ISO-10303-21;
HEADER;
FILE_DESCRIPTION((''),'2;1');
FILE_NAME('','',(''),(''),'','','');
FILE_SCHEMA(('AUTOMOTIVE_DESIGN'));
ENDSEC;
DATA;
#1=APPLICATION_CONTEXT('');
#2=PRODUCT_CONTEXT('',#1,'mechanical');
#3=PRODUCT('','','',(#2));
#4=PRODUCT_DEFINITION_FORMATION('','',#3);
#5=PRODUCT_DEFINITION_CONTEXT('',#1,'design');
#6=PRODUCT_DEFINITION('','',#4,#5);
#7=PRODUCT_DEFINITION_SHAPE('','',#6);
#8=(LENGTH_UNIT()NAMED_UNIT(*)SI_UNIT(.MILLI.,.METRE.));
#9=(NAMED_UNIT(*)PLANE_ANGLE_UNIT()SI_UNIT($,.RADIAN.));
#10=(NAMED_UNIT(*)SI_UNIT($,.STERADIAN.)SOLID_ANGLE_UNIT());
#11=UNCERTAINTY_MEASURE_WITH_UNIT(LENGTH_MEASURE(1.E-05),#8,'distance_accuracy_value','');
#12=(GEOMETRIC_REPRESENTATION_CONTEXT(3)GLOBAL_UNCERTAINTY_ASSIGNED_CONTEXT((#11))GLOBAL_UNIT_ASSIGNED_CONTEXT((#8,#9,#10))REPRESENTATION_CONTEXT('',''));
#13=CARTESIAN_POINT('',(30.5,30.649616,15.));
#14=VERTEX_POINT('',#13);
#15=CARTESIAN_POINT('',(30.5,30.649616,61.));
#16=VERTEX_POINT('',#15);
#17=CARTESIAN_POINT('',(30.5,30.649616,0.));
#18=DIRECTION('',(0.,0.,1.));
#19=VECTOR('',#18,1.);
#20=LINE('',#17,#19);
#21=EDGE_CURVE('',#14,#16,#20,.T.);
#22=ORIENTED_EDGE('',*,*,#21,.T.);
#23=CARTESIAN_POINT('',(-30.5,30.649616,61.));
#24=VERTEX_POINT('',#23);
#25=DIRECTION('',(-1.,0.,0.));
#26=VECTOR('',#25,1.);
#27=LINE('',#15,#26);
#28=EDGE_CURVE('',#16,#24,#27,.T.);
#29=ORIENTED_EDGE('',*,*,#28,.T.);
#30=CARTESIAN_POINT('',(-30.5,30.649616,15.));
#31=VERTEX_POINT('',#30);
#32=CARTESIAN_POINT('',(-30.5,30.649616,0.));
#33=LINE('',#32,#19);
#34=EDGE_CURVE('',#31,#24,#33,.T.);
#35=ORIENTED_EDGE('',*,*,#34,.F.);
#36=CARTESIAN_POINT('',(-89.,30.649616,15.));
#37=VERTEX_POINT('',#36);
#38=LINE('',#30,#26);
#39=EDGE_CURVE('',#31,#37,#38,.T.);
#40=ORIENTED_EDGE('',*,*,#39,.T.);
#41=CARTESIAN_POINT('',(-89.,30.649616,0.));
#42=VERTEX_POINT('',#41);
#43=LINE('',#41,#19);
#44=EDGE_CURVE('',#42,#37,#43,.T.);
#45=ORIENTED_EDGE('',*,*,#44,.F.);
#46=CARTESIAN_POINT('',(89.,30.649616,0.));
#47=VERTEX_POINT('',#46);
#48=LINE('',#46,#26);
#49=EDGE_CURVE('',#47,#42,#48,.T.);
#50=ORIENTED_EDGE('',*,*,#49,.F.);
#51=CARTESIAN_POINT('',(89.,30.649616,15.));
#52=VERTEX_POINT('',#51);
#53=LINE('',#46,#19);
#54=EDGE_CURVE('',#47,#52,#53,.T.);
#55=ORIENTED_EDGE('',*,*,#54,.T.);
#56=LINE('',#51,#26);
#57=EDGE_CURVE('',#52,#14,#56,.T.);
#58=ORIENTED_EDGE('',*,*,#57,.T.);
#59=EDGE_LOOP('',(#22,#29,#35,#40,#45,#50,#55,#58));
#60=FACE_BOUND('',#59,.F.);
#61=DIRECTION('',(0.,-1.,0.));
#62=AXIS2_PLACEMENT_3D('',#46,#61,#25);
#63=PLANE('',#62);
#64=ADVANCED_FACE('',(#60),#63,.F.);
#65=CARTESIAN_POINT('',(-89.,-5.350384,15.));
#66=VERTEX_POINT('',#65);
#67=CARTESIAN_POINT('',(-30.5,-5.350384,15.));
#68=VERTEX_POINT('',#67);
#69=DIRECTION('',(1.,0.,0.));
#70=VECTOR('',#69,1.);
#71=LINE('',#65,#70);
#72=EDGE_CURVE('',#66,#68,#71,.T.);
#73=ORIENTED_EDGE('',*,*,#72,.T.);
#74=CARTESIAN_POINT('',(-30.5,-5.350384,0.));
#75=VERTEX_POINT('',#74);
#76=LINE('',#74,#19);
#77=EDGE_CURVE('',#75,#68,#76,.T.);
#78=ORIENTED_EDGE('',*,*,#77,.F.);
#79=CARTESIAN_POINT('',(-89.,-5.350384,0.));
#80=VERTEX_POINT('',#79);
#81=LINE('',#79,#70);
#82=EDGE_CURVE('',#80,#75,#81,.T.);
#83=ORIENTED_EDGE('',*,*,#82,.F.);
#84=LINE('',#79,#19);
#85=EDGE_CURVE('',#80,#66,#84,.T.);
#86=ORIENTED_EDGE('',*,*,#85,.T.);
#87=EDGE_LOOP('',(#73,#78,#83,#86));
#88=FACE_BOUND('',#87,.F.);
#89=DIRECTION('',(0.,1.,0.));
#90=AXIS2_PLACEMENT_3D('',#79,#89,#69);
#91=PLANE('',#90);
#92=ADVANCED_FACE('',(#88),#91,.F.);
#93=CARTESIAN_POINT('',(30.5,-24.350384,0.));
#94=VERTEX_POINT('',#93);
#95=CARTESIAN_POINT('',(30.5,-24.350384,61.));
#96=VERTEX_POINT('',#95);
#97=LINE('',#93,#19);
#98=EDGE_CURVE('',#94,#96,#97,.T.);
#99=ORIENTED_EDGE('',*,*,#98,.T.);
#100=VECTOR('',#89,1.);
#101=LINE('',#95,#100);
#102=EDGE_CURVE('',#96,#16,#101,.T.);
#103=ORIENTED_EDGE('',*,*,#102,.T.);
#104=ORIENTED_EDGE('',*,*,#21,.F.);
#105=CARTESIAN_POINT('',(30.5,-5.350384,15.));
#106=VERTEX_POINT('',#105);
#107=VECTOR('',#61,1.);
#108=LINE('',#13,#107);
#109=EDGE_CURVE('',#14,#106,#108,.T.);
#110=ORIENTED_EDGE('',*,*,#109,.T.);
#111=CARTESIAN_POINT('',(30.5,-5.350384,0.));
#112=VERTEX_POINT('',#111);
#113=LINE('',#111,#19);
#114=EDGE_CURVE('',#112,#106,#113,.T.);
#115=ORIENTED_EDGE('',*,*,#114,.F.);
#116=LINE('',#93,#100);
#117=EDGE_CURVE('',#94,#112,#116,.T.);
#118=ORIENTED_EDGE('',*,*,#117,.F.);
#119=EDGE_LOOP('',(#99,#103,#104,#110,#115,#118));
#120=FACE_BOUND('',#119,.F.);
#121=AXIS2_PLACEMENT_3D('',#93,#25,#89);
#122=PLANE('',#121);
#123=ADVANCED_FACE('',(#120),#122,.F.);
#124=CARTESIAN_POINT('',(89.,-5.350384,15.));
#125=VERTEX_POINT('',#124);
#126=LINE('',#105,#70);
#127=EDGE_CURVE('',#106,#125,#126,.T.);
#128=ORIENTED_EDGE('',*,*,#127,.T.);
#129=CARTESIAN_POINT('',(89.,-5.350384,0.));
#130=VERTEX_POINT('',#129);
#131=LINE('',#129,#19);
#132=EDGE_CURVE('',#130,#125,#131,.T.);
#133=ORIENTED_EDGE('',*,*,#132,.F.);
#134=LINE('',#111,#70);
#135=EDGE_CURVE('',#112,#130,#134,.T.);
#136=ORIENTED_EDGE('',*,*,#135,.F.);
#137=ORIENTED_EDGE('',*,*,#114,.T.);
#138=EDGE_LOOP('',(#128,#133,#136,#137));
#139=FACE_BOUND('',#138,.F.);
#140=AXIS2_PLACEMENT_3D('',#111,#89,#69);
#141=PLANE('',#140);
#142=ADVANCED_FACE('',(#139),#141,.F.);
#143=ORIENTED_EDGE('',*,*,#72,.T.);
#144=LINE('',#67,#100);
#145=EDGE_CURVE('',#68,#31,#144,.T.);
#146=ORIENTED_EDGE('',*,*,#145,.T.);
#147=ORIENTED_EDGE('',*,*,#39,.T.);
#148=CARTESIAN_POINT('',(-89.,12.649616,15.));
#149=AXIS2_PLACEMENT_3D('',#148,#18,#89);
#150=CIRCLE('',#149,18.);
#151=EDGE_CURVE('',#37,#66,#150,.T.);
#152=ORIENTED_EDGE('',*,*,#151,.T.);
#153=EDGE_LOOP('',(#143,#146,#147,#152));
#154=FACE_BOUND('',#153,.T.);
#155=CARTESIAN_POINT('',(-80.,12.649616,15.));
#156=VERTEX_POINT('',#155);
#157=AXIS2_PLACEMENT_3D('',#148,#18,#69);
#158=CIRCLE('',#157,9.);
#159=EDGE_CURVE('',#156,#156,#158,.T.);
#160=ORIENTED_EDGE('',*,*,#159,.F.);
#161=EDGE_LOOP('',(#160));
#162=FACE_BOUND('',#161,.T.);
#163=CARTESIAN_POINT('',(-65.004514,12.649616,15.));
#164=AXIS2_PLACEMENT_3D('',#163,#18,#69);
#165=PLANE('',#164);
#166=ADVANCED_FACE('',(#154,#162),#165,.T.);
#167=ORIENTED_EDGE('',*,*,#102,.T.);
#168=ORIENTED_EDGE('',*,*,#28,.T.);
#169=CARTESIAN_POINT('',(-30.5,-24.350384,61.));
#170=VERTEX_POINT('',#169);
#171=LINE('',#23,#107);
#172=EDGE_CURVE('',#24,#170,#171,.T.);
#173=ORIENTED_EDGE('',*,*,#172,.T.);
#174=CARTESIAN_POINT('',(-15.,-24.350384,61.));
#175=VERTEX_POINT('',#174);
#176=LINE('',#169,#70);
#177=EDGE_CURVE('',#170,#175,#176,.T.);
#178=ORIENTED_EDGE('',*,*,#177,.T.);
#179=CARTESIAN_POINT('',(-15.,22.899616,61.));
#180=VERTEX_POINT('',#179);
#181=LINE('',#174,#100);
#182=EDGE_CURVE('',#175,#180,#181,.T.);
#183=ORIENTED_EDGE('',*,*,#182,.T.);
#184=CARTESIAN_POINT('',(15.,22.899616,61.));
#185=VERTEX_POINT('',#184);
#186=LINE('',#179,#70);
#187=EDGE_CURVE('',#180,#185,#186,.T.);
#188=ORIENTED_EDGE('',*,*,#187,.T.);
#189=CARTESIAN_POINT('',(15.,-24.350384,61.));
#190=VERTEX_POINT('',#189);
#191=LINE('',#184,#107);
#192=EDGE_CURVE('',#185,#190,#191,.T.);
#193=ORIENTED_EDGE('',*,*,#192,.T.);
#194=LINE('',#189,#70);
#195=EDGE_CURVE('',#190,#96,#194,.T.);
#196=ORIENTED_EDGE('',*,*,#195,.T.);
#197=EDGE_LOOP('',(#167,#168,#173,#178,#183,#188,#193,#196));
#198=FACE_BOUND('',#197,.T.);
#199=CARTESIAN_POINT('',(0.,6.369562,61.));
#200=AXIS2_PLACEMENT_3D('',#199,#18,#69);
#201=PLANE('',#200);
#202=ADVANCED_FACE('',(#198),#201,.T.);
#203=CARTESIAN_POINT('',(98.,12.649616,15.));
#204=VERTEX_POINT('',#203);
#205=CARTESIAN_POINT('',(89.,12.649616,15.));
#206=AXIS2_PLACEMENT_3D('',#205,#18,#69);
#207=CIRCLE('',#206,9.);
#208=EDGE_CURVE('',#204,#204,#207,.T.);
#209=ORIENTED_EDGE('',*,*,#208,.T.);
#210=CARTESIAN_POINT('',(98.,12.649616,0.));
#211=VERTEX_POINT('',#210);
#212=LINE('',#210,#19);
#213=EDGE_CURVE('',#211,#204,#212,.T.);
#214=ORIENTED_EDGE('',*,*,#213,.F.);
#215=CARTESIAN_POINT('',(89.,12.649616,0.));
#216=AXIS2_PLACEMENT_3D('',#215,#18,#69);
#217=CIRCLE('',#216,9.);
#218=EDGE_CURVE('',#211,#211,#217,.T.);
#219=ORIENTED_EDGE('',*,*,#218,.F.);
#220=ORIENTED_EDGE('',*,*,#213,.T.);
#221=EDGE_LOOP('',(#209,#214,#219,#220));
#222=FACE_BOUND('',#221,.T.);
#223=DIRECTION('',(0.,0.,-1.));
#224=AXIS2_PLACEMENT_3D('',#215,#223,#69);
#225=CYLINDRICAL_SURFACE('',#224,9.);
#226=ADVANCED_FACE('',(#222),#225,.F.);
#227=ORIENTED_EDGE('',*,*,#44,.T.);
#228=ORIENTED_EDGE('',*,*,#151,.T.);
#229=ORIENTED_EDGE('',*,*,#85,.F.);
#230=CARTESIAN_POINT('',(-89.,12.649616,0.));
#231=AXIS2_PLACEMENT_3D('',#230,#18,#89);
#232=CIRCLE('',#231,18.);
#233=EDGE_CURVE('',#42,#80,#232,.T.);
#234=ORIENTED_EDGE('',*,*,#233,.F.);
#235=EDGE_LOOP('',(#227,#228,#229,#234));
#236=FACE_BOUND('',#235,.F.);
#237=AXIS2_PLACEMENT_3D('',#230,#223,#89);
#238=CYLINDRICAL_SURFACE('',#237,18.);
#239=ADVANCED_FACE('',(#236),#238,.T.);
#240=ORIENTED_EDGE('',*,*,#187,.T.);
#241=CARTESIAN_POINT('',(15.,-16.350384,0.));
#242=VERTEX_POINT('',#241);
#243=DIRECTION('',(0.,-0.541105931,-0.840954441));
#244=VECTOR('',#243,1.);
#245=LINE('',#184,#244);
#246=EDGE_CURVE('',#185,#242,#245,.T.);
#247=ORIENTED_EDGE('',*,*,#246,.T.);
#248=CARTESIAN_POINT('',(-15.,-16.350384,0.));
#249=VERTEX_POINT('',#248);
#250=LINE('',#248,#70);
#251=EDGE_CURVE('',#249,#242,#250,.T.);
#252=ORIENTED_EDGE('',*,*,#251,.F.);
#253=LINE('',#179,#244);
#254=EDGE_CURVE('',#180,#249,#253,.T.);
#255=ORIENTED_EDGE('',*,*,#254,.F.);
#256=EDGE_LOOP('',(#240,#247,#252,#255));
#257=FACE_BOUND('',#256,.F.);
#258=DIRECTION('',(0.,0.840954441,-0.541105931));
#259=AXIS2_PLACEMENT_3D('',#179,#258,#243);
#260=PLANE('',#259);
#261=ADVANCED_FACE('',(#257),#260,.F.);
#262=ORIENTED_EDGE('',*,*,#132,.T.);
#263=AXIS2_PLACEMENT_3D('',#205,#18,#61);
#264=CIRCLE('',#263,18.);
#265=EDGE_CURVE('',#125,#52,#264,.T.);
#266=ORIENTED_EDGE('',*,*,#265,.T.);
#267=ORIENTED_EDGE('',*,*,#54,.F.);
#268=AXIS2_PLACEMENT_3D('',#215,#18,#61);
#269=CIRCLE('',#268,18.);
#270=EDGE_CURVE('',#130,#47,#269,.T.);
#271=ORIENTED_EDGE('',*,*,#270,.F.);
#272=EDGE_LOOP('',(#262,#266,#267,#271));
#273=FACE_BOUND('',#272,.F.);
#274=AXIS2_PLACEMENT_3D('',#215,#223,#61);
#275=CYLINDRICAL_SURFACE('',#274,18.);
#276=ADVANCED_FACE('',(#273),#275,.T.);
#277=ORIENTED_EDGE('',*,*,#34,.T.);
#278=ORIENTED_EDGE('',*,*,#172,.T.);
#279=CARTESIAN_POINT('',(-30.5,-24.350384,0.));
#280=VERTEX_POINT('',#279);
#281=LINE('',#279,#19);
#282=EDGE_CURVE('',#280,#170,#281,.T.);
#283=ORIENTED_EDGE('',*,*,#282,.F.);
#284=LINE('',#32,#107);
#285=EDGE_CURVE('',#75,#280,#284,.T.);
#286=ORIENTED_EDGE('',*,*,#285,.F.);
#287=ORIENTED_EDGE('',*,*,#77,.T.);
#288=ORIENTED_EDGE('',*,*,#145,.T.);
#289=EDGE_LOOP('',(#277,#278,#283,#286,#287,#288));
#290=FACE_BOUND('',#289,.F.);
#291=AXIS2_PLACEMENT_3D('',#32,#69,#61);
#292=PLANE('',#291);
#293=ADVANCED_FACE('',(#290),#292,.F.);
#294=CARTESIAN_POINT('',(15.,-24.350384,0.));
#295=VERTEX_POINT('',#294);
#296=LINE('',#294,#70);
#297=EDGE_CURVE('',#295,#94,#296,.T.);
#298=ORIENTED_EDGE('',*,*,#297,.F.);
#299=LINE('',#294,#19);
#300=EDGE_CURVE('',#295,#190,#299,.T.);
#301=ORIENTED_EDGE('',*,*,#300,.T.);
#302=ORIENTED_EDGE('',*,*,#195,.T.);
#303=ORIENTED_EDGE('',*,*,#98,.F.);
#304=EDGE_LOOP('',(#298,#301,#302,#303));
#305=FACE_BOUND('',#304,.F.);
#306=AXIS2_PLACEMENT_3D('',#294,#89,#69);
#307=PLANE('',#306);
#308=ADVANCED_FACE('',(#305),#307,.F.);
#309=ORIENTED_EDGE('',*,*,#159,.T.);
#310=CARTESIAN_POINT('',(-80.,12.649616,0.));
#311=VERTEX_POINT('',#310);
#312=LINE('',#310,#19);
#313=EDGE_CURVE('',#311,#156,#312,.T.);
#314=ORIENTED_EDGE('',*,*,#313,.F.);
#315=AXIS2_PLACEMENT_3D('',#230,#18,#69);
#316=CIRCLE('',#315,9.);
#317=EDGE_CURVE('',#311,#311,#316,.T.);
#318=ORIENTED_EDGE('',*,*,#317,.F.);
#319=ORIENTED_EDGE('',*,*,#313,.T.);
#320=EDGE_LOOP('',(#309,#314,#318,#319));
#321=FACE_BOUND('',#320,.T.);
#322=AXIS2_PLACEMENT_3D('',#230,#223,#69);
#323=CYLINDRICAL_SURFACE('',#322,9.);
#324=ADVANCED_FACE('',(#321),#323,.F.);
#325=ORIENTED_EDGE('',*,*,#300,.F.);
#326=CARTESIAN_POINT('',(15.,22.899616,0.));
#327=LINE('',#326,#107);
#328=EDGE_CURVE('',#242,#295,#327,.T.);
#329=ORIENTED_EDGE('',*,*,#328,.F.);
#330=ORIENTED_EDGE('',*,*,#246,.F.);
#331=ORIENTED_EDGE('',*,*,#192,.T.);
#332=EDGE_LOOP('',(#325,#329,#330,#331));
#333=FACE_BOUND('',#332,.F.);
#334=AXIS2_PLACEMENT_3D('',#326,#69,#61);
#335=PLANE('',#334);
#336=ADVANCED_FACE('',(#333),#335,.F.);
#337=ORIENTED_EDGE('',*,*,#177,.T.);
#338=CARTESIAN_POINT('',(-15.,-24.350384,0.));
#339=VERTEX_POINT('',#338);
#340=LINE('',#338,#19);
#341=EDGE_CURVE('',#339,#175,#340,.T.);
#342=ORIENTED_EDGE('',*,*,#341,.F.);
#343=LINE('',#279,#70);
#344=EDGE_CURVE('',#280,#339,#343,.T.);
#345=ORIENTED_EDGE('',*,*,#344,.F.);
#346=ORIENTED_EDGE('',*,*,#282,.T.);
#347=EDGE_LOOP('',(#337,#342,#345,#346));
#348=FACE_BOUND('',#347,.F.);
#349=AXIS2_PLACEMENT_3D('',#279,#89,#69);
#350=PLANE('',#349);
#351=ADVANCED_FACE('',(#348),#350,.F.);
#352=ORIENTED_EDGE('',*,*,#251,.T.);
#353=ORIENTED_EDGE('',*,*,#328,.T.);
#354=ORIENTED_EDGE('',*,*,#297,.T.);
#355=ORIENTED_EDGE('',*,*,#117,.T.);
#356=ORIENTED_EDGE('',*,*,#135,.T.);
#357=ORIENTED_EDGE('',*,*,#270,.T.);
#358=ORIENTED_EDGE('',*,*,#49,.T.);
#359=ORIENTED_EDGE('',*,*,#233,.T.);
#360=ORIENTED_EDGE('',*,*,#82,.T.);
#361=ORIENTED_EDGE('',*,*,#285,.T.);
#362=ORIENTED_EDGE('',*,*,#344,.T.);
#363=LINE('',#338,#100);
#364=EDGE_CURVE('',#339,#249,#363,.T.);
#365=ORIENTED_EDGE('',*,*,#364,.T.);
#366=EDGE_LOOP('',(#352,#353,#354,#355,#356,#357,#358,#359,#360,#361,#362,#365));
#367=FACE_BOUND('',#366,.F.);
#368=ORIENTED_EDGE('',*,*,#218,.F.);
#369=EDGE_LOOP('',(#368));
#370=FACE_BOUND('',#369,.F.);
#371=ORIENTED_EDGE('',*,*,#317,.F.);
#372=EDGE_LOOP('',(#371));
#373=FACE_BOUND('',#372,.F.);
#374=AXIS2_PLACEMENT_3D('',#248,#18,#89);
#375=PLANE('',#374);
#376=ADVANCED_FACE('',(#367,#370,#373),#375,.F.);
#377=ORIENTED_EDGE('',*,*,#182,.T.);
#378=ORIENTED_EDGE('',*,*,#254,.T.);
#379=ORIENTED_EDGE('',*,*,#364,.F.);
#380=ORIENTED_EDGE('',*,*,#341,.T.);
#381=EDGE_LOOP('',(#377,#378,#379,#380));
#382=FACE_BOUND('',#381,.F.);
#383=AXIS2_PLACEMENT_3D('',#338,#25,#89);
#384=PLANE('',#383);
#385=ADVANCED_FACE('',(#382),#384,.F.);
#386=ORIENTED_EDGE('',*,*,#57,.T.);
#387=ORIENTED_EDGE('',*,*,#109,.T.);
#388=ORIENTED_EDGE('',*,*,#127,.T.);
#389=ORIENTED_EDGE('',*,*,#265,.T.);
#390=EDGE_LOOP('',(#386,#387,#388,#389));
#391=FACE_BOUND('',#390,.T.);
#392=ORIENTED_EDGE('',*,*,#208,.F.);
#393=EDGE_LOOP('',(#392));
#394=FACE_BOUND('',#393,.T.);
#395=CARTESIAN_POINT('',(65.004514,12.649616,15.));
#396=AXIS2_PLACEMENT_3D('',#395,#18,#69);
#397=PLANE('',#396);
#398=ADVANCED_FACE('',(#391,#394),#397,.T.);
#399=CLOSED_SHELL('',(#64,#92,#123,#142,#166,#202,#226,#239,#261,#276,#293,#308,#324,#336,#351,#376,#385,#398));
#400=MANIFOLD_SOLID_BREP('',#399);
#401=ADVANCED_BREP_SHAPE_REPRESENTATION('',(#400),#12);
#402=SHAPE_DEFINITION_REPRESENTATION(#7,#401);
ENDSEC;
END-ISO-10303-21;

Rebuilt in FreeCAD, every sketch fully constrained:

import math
import FreeCAD as App
import Part
import Sketcher
from FreeCAD import Vector
Q = App.Units.Quantity

doc = App.newDocument("Part")
params = doc.addObject("Spreadsheet::Sheet", "Params")
for row, (alias, value) in enumerate([
    ("sketch1_width", "61 mm"),
    ("sketch1_width2", "30 mm"),
    ("sketch1_height", "55 mm"),
    ("sketch1_height2", "47.25 mm"),
    ("pad1_length", "61 mm"),
    ("sketch2_diameter", "18 mm"),
    ("sketch2_radius", "18 mm"),
    ("sketch2_width", "58.5 mm"),
    ("pad2_length", "15 mm"),
    ("sketch3_height", "61 mm"),
    ("sketch3_width", "39.25 mm"),
    ("pad3_length", "30 mm"),
], start=1):
    params.set(f"A{row}", alias)
    params.set(f"B{row}", "=" + value)
    params.setAlias(f"B{row}", alias)

body = doc.addObject("PartDesign::Body", "Body")

# Sketch on XY plane
sketch1 = body.newObject("Sketcher::SketchObject", "Sketch")
sketch1.AttachmentSupport = (doc.getObject("XY_Plane"), [""])
sketch1.MapMode = "FlatFace"
sketch1.addGeometry([
    Part.LineSegment(Vector(30.5, 30.649616, 0), Vector(-30.5, 30.649616, 0)),  # 0
    Part.LineSegment(Vector(-30.5, 30.649616, 0), Vector(-30.5, -24.350384, 0)),  # 1
    Part.LineSegment(Vector(-30.5, -24.350384, 0), Vector(-15, -24.350384, 0)),  # 2
    Part.LineSegment(Vector(-15, -24.350384, 0), Vector(-15, 22.899616, 0)),  # 3
    Part.LineSegment(Vector(-15, 22.899616, 0), Vector(15, 22.899616, 0)),  # 4
    Part.LineSegment(Vector(15, 22.899616, 0), Vector(15, -24.350384, 0)),  # 5
    Part.LineSegment(Vector(15, -24.350384, 0), Vector(30.5, -24.350384, 0)),  # 6
    Part.LineSegment(Vector(30.5, -24.350384, 0), Vector(30.5, 30.649616, 0)),  # 7
], False)
sketch1.addConstraint([
    Sketcher.Constraint("Coincident", 0, 2, 1, 1),
    Sketcher.Constraint("Coincident", 1, 2, 2, 1),
    Sketcher.Constraint("Coincident", 2, 2, 3, 1),
    Sketcher.Constraint("Coincident", 3, 2, 4, 1),
    Sketcher.Constraint("Coincident", 4, 2, 5, 1),
    Sketcher.Constraint("Coincident", 5, 2, 6, 1),
    Sketcher.Constraint("Coincident", 6, 2, 7, 1),
    Sketcher.Constraint("Coincident", 7, 2, 0, 1),
    Sketcher.Constraint("Horizontal", 0),
    Sketcher.Constraint("Vertical", 1),
    Sketcher.Constraint("Horizontal", 2),
    Sketcher.Constraint("Vertical", 3),
    Sketcher.Constraint("Horizontal", 4),
    Sketcher.Constraint("Vertical", 5),
    Sketcher.Constraint("Horizontal", 6),
    Sketcher.Constraint("Vertical", 7),
    Sketcher.Constraint("Symmetric", 2, 2, 5, 2, -2),
    Sketcher.Constraint("Equal", 2, 6),
    Sketcher.Constraint("DistanceX", 0, 2, 0, 1, Q("61 mm")),
    Sketcher.Constraint("DistanceX", 4, 1, 4, 2, Q("30 mm")),
    Sketcher.Constraint("DistanceY", 1, 2, 1, 1, Q("55 mm")),
    Sketcher.Constraint("DistanceY", 3, 1, 3, 2, Q("47.25 mm")),
    Sketcher.Constraint("DistanceY", -1, 1, 0, 2, Q("30.649616 mm")),
])
sketch1.setExpression("Constraints[18]", "Params.sketch1_width")
sketch1.setExpression("Constraints[19]", "Params.sketch1_width2")
sketch1.setExpression("Constraints[20]", "Params.sketch1_height")
sketch1.setExpression("Constraints[21]", "Params.sketch1_height2")
pad1 = body.newObject("PartDesign::Pad", "Pad")
pad1.Profile = sketch1
pad1.setExpression("Length", "Params.pad1_length")

# Sketch on XY plane
sketch2 = body.newObject("Sketcher::SketchObject", "Sketch001")
sketch2.AttachmentSupport = (doc.getObject("XY_Plane"), [""])
sketch2.MapMode = "FlatFace"
sketch2.addGeometry([
    Part.LineSegment(Vector(89, 30.649616, 0), Vector(30.5, 30.649616, 0)),  # 0
    Part.LineSegment(Vector(30.5, 30.649616, 0), Vector(30.5, -5.350384, 0)),  # 1
    Part.LineSegment(Vector(30.5, -5.350384, 0), Vector(89, -5.350384, 0)),  # 2
    Part.ArcOfCircle(Part.Circle(Vector(89, 12.649616, 0), Vector(0, 0, 1), 18), math.radians(-90), math.radians(90)),  # 3
    Part.Circle(Vector(89, 12.649616, 0), Vector(0, 0, 1), 9),  # 4
    Part.LineSegment(Vector(-30.5, -5.350384, 0), Vector(-30.5, 30.649616, 0)),  # 5
    Part.LineSegment(Vector(-30.5, 30.649616, 0), Vector(-89, 30.649616, 0)),  # 6
    Part.ArcOfCircle(Part.Circle(Vector(-89, 12.649616, 0), Vector(0, 0, 1), 18), math.radians(90), math.radians(270)),  # 7
    Part.LineSegment(Vector(-89, -5.350384, 0), Vector(-30.5, -5.350384, 0)),  # 8
    Part.Circle(Vector(-89, 12.649616, 0), Vector(0, 0, 1), 9),  # 9
], False)
sketch2.addConstraint([
    Sketcher.Constraint("Coincident", 0, 2, 1, 1),
    Sketcher.Constraint("Coincident", 1, 2, 2, 1),
    Sketcher.Constraint("Tangent", 2, 2, 3, 1),
    Sketcher.Constraint("Tangent", 3, 2, 0, 1),
    Sketcher.Constraint("Coincident", 5, 2, 6, 1),
    Sketcher.Constraint("Tangent", 6, 2, 7, 1),
    Sketcher.Constraint("Tangent", 7, 2, 8, 1),
    Sketcher.Constraint("Coincident", 8, 2, 5, 1),
    Sketcher.Constraint("Horizontal", 0),
    Sketcher.Constraint("Vertical", 1),
    Sketcher.Constraint("Horizontal", 2),
    Sketcher.Constraint("Vertical", 5),
    Sketcher.Constraint("Horizontal", 6),
    Sketcher.Constraint("Horizontal", 8),
    Sketcher.Constraint("Coincident", 4, 3, 3, 3),
    Sketcher.Constraint("Coincident", 9, 3, 7, 3),
    Sketcher.Constraint("Equal", 3, 7),
    Sketcher.Constraint("Equal", 4, 9),
    Sketcher.Constraint("Symmetric", 3, 3, 7, 3, -2),
    Sketcher.Constraint("Equal", 2, 6),
    Sketcher.Constraint("Diameter", 4, Q("18 mm")),
    Sketcher.Constraint("Radius", 3, Q("18 mm")),
    Sketcher.Constraint("DistanceX", 0, 2, 0, 1, Q("58.5 mm")),
    Sketcher.Constraint("DistanceX", -1, 1, 3, 3, Q("89 mm")),
    Sketcher.Constraint("DistanceY", -1, 1, 3, 3, Q("12.649616 mm")),
])
sketch2.setExpression("Constraints[20]", "Params.sketch2_diameter")
sketch2.setExpression("Constraints[21]", "Params.sketch2_radius")
sketch2.setExpression("Constraints[22]", "Params.sketch2_width")
pad2 = body.newObject("PartDesign::Pad", "Pad001")
pad2.Profile = sketch2
pad2.setExpression("Length", "Params.pad2_length")

# Sketch on YZ plane
sketch3 = body.newObject("Sketcher::SketchObject", "Sketch002")
sketch3.AttachmentSupport = (doc.getObject("YZ_Plane"), [""])
sketch3.MapMode = "FlatFace"
sketch3.AttachmentOffset = App.Placement(Vector(0, 0, -15), App.Rotation())
sketch3.addGeometry([
    Part.LineSegment(Vector(22.899616, 0, 0), Vector(22.899616, 61, 0)),
    Part.LineSegment(Vector(22.899616, 61, 0), Vector(-16.350384, 0, 0)),
    Part.LineSegment(Vector(-16.350384, 0, 0), Vector(22.899616, 0, 0)),
], False)
sketch3.addConstraint([
    Sketcher.Constraint("Coincident", 0, 2, 1, 1),
    Sketcher.Constraint("Coincident", 1, 2, 2, 1),
    Sketcher.Constraint("Coincident", 2, 2, 0, 1),
    Sketcher.Constraint("Vertical", 0),
    Sketcher.Constraint("Horizontal", 2),
    Sketcher.Constraint("PointOnObject", 1, 2, -1),
    Sketcher.Constraint("DistanceY", 0, 1, 0, 2, Q("61 mm")),
    Sketcher.Constraint("DistanceX", 2, 1, 2, 2, Q("39.25 mm")),
    Sketcher.Constraint("DistanceX", -1, 1, 0, 2, Q("22.899616 mm")),
])
sketch3.setExpression("Constraints[6]", "Params.sketch3_height")
sketch3.setExpression("Constraints[7]", "Params.sketch3_width")
pad3 = body.newObject("PartDesign::Pad", "Pad002")
pad3.Profile = sketch3
pad3.setExpression("Length", "Params.pad3_length")

doc.recompute()
